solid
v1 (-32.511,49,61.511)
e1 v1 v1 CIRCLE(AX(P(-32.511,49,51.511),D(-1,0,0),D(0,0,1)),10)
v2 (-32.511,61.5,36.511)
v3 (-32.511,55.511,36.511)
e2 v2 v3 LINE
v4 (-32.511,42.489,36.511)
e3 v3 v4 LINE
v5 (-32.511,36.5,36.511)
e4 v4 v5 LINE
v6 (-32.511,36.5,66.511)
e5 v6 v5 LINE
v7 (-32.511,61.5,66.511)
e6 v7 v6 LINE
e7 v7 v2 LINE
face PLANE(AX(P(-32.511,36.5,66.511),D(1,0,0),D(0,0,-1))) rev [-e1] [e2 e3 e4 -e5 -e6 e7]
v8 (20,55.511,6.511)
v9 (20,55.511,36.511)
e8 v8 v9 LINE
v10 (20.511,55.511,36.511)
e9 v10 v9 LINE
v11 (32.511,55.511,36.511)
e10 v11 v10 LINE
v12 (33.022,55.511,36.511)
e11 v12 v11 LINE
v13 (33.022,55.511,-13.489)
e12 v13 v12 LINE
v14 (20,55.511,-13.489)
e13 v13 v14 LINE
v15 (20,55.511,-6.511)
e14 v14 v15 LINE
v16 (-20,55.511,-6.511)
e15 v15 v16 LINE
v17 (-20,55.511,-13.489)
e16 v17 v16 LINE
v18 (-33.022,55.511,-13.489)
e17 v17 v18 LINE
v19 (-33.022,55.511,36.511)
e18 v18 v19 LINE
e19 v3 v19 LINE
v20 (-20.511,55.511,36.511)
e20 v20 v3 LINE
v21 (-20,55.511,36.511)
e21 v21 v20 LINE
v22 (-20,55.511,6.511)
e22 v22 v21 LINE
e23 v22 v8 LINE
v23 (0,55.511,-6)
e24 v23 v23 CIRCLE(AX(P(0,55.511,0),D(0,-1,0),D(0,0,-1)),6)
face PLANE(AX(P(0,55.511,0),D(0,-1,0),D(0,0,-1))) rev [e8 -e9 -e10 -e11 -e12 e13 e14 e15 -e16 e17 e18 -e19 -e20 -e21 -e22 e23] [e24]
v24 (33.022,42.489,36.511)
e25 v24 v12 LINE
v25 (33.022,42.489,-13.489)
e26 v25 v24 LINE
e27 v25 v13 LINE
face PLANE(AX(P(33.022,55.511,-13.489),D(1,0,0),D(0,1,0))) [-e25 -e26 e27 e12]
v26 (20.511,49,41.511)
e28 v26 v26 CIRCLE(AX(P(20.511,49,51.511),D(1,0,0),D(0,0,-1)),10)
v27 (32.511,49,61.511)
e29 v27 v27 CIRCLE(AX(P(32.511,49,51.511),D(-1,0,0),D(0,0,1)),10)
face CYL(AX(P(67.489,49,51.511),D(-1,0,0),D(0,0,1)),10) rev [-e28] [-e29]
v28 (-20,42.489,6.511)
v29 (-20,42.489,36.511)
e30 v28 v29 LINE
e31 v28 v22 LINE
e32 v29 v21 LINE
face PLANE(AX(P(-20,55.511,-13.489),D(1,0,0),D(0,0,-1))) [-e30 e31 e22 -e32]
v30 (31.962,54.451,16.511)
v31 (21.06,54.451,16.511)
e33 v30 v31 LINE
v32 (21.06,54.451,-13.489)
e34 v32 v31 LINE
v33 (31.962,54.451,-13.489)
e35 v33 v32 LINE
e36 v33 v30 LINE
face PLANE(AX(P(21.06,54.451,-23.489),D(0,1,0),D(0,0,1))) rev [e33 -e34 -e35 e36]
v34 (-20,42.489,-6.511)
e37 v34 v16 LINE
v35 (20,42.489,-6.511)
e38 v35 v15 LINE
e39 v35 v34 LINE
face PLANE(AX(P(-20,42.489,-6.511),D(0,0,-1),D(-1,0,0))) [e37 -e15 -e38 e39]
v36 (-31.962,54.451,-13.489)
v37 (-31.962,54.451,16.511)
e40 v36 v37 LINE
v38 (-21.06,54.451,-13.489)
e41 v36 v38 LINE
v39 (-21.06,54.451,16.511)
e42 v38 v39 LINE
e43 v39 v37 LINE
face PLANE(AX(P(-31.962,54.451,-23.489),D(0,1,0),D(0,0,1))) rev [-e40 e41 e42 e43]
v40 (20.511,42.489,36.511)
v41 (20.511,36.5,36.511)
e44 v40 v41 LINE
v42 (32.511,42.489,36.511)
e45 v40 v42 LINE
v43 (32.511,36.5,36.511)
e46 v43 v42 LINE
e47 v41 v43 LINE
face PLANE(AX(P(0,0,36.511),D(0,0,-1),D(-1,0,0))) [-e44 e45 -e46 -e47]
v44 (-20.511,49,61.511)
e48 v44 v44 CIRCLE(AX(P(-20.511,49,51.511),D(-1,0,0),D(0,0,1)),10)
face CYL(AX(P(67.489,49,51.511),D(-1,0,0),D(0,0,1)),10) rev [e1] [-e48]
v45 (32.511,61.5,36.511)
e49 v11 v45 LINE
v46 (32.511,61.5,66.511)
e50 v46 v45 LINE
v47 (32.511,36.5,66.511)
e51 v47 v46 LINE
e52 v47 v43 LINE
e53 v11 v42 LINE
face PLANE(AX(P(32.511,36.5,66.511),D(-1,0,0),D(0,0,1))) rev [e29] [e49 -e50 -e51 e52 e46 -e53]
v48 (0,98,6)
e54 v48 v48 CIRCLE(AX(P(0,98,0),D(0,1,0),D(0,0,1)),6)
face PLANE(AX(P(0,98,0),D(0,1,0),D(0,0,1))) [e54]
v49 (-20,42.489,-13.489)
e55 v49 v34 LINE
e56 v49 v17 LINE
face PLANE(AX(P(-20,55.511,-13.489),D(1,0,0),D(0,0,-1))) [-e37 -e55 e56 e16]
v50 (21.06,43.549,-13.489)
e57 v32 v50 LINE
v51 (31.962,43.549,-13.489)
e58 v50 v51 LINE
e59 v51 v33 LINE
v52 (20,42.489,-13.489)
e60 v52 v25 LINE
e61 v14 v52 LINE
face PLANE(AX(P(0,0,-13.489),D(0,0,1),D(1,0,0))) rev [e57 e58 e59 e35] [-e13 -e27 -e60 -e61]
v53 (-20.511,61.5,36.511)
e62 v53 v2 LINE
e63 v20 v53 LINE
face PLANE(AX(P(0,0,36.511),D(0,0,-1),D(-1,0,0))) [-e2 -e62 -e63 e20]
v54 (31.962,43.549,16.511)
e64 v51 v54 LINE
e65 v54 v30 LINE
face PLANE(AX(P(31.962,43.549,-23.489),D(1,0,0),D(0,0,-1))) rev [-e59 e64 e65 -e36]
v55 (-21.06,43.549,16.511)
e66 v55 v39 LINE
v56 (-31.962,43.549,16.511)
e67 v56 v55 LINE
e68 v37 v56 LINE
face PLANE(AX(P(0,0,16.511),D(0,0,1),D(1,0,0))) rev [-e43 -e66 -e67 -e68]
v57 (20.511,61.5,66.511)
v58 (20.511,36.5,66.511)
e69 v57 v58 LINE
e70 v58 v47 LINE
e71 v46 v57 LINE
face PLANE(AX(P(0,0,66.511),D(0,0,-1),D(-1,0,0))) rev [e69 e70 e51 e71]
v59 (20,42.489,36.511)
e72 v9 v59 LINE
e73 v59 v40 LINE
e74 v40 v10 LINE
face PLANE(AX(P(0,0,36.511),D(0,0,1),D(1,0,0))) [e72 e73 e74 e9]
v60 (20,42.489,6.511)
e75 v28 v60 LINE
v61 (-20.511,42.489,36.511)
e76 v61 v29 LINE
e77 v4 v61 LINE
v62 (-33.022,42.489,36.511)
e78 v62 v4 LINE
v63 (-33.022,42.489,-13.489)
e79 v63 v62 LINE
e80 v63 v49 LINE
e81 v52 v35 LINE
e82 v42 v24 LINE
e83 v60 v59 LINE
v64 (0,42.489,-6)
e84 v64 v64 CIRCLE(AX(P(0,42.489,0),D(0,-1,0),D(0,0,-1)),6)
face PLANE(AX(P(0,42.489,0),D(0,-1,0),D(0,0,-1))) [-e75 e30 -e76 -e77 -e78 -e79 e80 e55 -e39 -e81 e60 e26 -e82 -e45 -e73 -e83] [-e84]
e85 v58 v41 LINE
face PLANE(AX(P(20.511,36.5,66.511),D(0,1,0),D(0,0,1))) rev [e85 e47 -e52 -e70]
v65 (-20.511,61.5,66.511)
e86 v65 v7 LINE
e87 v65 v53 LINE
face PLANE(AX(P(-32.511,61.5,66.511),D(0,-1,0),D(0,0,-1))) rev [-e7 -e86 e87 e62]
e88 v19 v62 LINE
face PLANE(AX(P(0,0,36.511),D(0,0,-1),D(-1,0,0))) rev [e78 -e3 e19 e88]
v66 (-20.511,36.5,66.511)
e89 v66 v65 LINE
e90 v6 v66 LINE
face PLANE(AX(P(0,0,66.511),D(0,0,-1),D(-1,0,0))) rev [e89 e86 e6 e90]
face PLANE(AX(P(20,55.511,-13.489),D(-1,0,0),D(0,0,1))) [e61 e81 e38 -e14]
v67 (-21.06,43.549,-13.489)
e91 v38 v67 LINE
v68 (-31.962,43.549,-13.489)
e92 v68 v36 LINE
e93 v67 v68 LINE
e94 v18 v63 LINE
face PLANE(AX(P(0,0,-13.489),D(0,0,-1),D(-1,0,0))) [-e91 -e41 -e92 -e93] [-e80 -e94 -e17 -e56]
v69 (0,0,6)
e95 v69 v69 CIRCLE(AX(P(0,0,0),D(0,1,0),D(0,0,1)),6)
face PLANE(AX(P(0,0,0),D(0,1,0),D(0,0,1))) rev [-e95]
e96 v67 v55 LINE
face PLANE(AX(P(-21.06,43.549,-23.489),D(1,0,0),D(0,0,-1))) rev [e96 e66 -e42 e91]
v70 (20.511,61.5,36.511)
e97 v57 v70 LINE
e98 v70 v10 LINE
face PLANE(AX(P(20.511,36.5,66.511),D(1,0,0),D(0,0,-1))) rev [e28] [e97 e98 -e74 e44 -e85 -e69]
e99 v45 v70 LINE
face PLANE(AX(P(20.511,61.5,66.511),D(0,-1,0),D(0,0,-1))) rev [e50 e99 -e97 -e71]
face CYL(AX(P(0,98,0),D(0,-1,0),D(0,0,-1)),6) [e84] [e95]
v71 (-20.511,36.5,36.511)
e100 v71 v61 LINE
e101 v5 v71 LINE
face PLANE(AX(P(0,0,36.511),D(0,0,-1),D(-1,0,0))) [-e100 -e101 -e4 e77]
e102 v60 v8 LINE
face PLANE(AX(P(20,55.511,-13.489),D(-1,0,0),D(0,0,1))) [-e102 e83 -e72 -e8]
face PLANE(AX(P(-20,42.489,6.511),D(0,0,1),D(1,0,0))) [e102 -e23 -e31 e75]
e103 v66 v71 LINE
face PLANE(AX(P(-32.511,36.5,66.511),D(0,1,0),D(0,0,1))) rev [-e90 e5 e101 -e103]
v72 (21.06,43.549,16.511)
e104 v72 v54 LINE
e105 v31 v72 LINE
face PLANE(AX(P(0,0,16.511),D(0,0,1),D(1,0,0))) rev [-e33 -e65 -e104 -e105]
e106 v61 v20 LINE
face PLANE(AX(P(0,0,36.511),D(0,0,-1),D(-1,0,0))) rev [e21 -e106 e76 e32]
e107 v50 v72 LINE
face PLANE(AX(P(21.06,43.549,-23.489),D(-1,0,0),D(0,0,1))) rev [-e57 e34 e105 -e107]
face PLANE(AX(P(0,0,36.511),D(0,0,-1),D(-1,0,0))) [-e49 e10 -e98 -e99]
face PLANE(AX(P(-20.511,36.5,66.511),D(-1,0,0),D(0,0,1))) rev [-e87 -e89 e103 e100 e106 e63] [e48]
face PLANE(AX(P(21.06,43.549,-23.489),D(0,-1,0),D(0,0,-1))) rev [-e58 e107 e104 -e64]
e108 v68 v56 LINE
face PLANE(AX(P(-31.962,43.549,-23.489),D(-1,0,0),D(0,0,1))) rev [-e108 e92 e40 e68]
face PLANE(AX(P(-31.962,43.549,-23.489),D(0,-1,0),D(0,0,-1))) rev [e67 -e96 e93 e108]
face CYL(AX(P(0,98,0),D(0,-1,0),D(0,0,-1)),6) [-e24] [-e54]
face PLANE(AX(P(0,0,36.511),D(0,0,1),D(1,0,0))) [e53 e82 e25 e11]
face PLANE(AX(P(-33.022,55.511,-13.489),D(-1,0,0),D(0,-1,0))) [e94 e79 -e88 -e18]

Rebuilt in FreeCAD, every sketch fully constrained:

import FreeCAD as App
import Part
import Sketcher


def add_polygon(sketch, points):
    """Adds a closed chain of lines whose ends are joined by coincident constraints."""
    first, n = sketch.GeometryCount, len(points)
    for a, b in zip(points, points[1:] + points[:1]):
        sketch.addGeometry(Part.LineSegment(App.Vector(*a, 0), App.Vector(*b, 0)), False)
    for i in range(n):
        sketch.addConstraint(Sketcher.Constraint("Coincident", first + i, 2, first + (i + 1) % n, 1))

doc = App.newDocument("Part")
body = doc.addObject("PartDesign::Body", "Body")

sketch1 = body.newObject("Sketcher::SketchObject", "Sketch")
sketch1.AttachmentSupport = (doc.getObject("XZ_Plane"), [""])
sketch1.MapMode = "FlatFace"
sketch1.addGeometry(Part.Circle(App.Vector(0, 0, 0), App.Vector(0, 0, 1), 6), False)
sketch1.addConstraint([
    Sketcher.Constraint("Coincident", 0, 3, -1, 1),
    Sketcher.Constraint("Diameter", 0, 12.0),
])
pad1 = body.newObject("PartDesign::Pad", "Pad")
pad1.Profile = sketch1
pad1.Length = 98
pad1.Reversed = True

sketch2 = body.newObject("Sketcher::SketchObject", "Sketch001")
sketch2.AttachmentSupport = (doc.getObject("XZ_Plane"), [""])
sketch2.MapMode = "FlatFace"
sketch2.AttachmentOffset = App.Placement(App.Vector(0, 0, -55.511), App.Rotation())
add_polygon(sketch2, [(-20, -7), (-20, 7), (20, 7), (20, -7)])
sketch2.addConstraint([
    Sketcher.Constraint("Vertical", 0),
    Sketcher.Constraint("Horizontal", 1),
    Sketcher.Constraint("Vertical", 2),
    Sketcher.Constraint("Horizontal", 3),
    Sketcher.Constraint("Symmetric", 0, 2, 2, 2, -1, 1),
    Sketcher.Constraint("DistanceX", 1, 1, 1, 2, 40.0),
    Sketcher.Constraint("DistanceY", 0, 1, 0, 2, 13.022),
])
pad2 = body.newObject("PartDesign::Pad", "Pad001")
pad2.Profile = sketch2
pad2.Length = 13.022

sketch3 = body.newObject("Sketcher::SketchObject", "Sketch002")
sketch3.AttachmentSupport = (doc.getObject("XY_Plane"), [""])
sketch3.MapMode = "FlatFace"
sketch3.AttachmentOffset = App.Placement(App.Vector(0, 0, 6.511), App.Rotation())
add_polygon(sketch3, [(-33, 56), (-33, 42), (-20, 42), (-20, 56)])
add_polygon(sketch3, [(20, 56), (20, 42), (33, 42), (33, 56)])
sketch3.addConstraint([
    Sketcher.Constraint("Vertical", 0),
    Sketcher.Constraint("Horizontal", 1),
    Sketcher.Constraint("Vertical", 2),
    Sketcher.Constraint("Horizontal", 3),
    Sketcher.Constraint("Vertical", 4),
    Sketcher.Constraint("Horizontal", 5),
    Sketcher.Constraint("Vertical", 6),
    Sketcher.Constraint("Horizontal", 7),
    Sketcher.Constraint("Symmetric", 1, 2, 4, 2, -2),
    Sketcher.Constraint("Symmetric", 3, 2, 6, 2, -2),
    Sketcher.Constraint("Equal", 7, 0),
    Sketcher.Constraint("DistanceX", 1, 2, -1, 1, 20.0),
    Sketcher.Constraint("DistanceX", 1, 1, 1, 2, 13.022),
    Sketcher.Constraint("DistanceY", -1, 1, 0, 2, 42.489),
])
pad3 = body.newObject("PartDesign::Pad", "Pad002")
pad3.Profile = sketch3
pad3.Type = "TwoLengths"
pad3.Length = 30
pad3.Length2 = 20

sketch4 = body.newObject("Sketcher::SketchObject", "Sketch003")
sketch4.AttachmentSupport = (doc.getObject("XY_Plane"), [""])
sketch4.MapMode = "FlatFace"
sketch4.AttachmentOffset = App.Placement(App.Vector(0, 0, 36.511), App.Rotation())
add_polygon(sketch4, [(-32, 54), (-32, 44), (-21, 44), (-21, 54)])
add_polygon(sketch4, [(21, 54), (21, 44), (32, 44), (32, 54)])
sketch4.addConstraint([
    Sketcher.Constraint("Vertical", 0),
    Sketcher.Constraint("Horizontal", 1),
    Sketcher.Constraint("Vertical", 2),
    Sketcher.Constraint("Horizontal", 3),
    Sketcher.Constraint("Vertical", 4),
    Sketcher.Constraint("Horizontal", 5),
    Sketcher.Constraint("Vertical", 6),
    Sketcher.Constraint("Horizontal", 7),
    Sketcher.Constraint("Symmetric", 1, 2, 4, 2, -2),
    Sketcher.Constraint("Symmetric", 3, 2, 6, 2, -2),
    Sketcher.Constraint("Equal", 7, 0),
    Sketcher.Constraint("DistanceX", 1, 1, 1, 2, 10.902),
    Sketcher.Constraint("DistanceX", 1, 2, -1, 1, 21.06),
    Sketcher.Constraint("DistanceY", -1, 1, 0, 2, 43.549),
])
pocket1 = body.newObject("PartDesign::Pocket", "Pocket")
pocket1.Profile = sketch4
pocket1.Length = 60

sketch5 = body.newObject("Sketcher::SketchObject", "Sketch004")
sketch5.AttachmentSupport = (doc.getObject("XY_Plane"), [""])
sketch5.MapMode = "FlatFace"
sketch5.AttachmentOffset = App.Placement(App.Vector(0, 0, 16.511), App.Rotation())
add_polygon(sketch5, [(-32, 54), (-32, 44), (-21, 44), (-21, 54)])
add_polygon(sketch5, [(21, 54), (21, 44), (32, 44), (32, 54)])
sketch5.addConstraint([
    Sketcher.Constraint("Vertical", 0),
    Sketcher.Constraint("Horizontal", 1),
    Sketcher.Constraint("Vertical", 2),
    Sketcher.Constraint("Horizontal", 3),
    Sketcher.Constraint("Vertical", 4),
    Sketcher.Constraint("Horizontal", 5),
    Sketcher.Constraint("Vertical", 6),
    Sketcher.Constraint("Horizontal", 7),
    Sketcher.Constraint("Symmetric", 1, 2, 4, 2, -2),
    Sketcher.Constraint("Symmetric", 3, 2, 6, 2, -2),
    Sketcher.Constraint("Equal", 7, 0),
    Sketcher.Constraint("DistanceX", 1, 1, 1, 2, 10.902),
    Sketcher.Constraint("DistanceX", 1, 2, -1, 1, 21.06),
    Sketcher.Constraint("DistanceY", -1, 1, 0, 2, 43.549),
])
pad4 = body.newObject("PartDesign::Pad", "Pad003")
pad4.Profile = sketch5
pad4.Length = 20

sketch6 = body.newObject("Sketcher::SketchObject", "Sketch005")
sketch6.AttachmentSupport = (doc.getObject("XY_Plane"), [""])
sketch6.MapMode = "FlatFace"
sketch6.AttachmentOffset = App.Placement(App.Vector(0, 0, 36.511), App.Rotation())
add_polygon(sketch6, [(-33, 62), (-33, 36), (-21, 36), (-21, 62)])
add_polygon(sketch6, [(21, 62), (21, 36), (33, 36), (33, 62)])
sketch6.addConstraint([
    Sketcher.Constraint("Vertical", 0),
    Sketcher.Constraint("Horizontal", 1),
    Sketcher.Constraint("Vertical", 2),
    Sketcher.Constraint("Horizontal", 3),
    Sketcher.Constraint("Vertical", 4),
    Sketcher.Constraint("Horizontal", 5),
    Sketcher.Constraint("Vertical", 6),
    Sketcher.Constraint("Horizontal", 7),
    Sketcher.Constraint("Symmetric", 1, 2, 4, 2, -2),
    Sketcher.Constraint("Symmetric", 3, 2, 6, 2, -2),
    Sketcher.Constraint("DistanceX", 1, 1, 1, 2, 12.0),
    Sketcher.Constraint("DistanceY", 0, 2, 0, 1, 25.0),
    Sketcher.Constraint("DistanceY", -1, 1, 0, 2, 36.5),
    Sketcher.Constraint("DistanceX", 0, 2, -1, 1, 32.511),
])
pad5 = body.newObject("PartDesign::Pad", "Pad004")
pad5.Profile = sketch6
pad5.Length = 30

sketch7 = body.newObject("Sketcher::SketchObject", "Sketch006")
sketch7.AttachmentSupport = (doc.getObject("YZ_Plane"), [""])
sketch7.MapMode = "FlatFace"
sketch7.AttachmentOffset = App.Placement(App.Vector(0, 0, -32.511), App.Rotation())
sketch7.addGeometry(Part.Circle(App.Vector(49, 52, 0), App.Vector(0, 0, 1), 10), False)
sketch7.addConstraint([
    Sketcher.Constraint("Diameter", 0, 20.0),
    Sketcher.Constraint("DistanceX", -1, 1, 0, 3, 49.0),
    Sketcher.Constraint("DistanceY", -1, 1, 0, 3, 51.511),
])
pocket2 = body.newObject("PartDesign::Pocket", "Pocket001")
pocket2.Profile = sketch7
pocket2.Length = 100
pocket2.Reversed = True

doc.recompute()
